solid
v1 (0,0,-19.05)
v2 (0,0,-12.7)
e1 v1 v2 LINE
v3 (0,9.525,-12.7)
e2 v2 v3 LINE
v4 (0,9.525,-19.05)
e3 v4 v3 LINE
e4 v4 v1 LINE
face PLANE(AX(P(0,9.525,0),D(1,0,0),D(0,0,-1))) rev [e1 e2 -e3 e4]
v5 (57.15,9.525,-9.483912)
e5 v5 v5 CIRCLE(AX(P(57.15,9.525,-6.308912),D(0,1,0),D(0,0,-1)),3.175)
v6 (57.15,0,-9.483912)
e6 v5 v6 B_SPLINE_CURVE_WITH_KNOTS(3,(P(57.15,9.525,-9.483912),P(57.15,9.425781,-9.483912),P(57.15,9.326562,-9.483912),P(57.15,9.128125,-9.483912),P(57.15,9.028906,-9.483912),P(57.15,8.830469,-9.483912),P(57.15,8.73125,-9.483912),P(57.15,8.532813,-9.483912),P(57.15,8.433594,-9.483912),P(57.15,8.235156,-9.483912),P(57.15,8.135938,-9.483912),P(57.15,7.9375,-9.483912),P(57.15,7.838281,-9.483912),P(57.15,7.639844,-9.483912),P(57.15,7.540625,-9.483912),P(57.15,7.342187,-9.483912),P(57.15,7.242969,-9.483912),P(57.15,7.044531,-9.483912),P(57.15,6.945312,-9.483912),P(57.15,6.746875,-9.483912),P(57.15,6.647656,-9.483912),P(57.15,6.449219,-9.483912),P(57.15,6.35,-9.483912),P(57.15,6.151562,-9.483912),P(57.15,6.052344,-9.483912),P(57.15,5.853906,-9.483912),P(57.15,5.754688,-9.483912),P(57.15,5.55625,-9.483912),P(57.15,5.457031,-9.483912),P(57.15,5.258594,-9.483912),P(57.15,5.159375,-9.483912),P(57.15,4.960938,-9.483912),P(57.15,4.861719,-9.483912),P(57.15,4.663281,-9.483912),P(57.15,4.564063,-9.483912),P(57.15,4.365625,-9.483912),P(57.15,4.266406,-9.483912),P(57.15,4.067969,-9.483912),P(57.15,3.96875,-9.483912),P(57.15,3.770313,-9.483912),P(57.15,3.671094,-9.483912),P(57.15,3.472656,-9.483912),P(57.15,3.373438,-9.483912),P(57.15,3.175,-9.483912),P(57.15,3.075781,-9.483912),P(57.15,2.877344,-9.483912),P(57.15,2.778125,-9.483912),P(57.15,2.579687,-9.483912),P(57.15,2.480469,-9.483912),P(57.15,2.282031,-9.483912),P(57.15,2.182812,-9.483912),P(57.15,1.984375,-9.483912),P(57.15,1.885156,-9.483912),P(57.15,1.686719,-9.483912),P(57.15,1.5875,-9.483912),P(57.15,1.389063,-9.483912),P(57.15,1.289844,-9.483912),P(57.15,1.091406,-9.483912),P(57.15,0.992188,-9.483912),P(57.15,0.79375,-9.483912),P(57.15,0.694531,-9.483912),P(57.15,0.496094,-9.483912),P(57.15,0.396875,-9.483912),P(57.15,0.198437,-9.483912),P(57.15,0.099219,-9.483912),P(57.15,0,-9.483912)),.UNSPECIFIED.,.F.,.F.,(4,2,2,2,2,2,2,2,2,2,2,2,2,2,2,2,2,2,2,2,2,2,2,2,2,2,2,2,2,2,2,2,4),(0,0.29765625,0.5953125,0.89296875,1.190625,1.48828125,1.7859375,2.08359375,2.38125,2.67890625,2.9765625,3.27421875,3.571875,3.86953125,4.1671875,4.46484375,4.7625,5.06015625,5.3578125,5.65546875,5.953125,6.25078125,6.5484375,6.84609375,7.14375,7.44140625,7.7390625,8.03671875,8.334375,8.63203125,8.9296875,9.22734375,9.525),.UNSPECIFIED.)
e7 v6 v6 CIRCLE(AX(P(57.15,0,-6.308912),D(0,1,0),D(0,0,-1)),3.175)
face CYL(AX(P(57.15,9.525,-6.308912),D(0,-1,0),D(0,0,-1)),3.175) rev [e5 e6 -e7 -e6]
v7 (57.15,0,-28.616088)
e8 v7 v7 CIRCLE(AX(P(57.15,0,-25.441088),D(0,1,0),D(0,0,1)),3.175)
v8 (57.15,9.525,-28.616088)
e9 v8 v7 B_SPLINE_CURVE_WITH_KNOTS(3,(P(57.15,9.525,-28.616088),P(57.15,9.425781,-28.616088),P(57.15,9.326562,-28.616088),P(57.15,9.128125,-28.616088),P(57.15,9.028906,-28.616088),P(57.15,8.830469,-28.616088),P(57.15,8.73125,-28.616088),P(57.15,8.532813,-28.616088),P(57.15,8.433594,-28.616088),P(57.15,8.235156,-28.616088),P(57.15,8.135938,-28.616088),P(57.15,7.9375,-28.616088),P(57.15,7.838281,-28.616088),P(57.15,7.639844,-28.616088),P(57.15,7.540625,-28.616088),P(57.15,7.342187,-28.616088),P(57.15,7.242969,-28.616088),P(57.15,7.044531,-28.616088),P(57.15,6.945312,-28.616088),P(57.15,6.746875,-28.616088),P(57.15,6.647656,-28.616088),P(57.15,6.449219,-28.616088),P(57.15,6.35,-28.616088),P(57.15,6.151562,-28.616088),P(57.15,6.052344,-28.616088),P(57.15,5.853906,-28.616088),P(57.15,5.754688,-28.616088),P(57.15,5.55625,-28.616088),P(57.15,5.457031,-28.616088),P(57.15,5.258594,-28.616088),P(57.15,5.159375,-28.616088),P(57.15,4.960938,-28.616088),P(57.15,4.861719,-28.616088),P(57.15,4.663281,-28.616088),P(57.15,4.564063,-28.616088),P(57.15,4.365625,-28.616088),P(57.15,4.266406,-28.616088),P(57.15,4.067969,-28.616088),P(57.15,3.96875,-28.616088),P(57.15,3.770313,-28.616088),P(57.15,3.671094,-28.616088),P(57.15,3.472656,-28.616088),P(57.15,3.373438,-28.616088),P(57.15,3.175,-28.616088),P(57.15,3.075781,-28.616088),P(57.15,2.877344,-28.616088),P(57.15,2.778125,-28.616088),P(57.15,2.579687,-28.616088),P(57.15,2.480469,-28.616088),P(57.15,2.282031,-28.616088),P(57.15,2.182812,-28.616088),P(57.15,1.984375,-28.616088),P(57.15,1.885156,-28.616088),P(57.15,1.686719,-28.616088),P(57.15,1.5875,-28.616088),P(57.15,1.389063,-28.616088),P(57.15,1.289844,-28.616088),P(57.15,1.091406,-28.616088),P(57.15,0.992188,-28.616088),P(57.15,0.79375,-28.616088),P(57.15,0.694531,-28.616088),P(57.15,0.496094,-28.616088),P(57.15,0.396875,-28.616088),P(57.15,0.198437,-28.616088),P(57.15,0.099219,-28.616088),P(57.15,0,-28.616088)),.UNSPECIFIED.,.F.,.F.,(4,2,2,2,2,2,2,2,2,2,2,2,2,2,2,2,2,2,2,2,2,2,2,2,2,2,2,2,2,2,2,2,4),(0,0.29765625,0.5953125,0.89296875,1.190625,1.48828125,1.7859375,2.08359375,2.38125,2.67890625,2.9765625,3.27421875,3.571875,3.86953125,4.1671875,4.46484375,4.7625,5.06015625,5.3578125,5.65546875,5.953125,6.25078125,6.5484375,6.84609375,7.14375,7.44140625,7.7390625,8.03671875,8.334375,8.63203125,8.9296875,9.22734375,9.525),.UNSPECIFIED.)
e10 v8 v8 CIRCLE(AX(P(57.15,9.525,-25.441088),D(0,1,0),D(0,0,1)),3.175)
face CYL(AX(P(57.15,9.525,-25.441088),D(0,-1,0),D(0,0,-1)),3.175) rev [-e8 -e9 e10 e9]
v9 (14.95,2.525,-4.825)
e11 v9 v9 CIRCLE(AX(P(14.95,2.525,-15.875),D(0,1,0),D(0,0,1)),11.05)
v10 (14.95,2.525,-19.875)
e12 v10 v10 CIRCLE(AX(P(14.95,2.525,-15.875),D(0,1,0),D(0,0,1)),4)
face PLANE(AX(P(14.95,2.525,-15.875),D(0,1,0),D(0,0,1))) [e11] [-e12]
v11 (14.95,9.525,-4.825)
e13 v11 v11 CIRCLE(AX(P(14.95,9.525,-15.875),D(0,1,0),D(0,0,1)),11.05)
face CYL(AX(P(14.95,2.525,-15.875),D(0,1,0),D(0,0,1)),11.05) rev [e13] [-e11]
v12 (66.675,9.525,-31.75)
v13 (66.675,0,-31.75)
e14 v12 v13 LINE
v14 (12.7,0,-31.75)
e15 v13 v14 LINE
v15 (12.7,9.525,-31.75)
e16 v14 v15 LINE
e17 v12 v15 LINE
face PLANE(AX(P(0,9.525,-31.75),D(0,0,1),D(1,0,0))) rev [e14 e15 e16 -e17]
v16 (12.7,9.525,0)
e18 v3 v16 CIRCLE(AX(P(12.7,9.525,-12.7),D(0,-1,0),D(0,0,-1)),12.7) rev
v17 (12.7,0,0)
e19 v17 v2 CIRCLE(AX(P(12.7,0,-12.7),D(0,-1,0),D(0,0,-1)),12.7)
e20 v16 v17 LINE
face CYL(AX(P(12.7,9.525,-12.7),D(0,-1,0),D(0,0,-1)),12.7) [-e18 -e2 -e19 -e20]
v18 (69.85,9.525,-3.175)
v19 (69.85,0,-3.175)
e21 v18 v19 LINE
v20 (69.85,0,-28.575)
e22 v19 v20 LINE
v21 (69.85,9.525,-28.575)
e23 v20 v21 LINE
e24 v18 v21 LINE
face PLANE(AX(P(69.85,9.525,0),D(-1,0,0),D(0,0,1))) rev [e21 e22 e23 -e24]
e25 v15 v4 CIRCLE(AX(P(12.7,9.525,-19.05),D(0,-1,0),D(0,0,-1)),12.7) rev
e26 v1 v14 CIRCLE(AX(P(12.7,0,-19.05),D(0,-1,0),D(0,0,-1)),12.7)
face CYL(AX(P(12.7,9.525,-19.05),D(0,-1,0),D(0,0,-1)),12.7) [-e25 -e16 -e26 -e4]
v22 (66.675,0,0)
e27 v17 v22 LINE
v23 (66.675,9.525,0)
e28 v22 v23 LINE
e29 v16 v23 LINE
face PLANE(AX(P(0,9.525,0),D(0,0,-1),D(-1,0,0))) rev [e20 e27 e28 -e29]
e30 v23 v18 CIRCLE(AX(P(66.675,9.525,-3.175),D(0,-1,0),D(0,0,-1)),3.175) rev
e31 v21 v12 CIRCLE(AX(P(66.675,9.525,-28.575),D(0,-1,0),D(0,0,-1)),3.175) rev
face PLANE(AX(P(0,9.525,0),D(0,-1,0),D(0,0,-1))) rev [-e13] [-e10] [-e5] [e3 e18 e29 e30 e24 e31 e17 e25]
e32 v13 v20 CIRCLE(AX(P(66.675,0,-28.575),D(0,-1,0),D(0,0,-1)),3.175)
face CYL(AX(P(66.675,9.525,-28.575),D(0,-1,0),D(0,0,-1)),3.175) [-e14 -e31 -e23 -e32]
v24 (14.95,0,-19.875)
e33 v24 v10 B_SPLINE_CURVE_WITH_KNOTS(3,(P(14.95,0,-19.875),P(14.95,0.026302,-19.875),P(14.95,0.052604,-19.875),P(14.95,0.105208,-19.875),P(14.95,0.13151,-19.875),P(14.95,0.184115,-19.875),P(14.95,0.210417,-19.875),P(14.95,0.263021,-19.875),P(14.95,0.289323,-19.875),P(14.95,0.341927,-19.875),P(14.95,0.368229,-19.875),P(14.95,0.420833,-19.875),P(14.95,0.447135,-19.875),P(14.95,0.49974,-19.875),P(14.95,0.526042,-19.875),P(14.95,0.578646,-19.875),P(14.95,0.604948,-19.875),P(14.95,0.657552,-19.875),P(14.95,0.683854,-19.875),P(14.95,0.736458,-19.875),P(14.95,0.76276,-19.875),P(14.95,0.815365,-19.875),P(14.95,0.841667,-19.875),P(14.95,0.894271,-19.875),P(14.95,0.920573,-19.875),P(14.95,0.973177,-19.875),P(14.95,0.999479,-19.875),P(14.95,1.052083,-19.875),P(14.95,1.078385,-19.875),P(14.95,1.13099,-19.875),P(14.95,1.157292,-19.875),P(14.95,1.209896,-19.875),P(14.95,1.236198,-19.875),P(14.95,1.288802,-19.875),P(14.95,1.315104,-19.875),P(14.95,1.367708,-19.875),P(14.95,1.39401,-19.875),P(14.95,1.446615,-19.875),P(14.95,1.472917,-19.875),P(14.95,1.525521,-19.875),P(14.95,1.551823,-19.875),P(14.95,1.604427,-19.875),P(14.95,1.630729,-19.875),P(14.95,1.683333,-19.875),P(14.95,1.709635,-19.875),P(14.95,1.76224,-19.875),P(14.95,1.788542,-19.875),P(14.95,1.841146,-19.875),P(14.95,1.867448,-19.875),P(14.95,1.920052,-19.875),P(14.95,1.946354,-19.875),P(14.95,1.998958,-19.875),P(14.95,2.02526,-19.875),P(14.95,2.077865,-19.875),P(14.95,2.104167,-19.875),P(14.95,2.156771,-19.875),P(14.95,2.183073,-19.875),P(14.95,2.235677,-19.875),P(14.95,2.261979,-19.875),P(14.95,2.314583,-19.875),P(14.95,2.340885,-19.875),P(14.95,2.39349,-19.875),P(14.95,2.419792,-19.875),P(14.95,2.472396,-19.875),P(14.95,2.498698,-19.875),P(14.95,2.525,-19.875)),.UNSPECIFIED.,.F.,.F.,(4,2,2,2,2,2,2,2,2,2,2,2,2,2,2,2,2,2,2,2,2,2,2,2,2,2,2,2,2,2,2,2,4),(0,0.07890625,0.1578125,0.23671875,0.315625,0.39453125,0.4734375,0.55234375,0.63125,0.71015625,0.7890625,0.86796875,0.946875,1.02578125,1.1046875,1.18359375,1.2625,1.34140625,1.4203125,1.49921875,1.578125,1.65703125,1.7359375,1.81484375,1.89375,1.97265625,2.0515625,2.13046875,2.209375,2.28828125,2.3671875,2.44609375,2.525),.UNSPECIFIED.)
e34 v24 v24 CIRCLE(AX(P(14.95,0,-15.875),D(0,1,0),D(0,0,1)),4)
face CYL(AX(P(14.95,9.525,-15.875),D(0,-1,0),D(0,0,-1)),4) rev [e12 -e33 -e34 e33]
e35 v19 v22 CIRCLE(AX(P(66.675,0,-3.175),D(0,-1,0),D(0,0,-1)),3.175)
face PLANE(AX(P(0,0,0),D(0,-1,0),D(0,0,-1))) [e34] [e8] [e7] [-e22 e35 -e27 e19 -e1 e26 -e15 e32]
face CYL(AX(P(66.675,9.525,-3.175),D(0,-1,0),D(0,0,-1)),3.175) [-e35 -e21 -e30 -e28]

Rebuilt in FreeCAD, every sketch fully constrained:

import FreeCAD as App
import Part
import Sketcher
Q = App.Units.Quantity


def edges_at(feature, points):
    """Names of the edges that pass closest to the given points."""
    edges = feature.Shape.Edges
    near = lambda p: min(range(len(edges)), key=lambda i: edges[i].distToShape(Part.Vertex(*p))[0])
    return sorted({f"Edge{near(p) + 1}" for p in points})


def add_polygon(sketch, points):
    """Adds a closed chain of lines whose ends are joined by coincident constraints."""
    first, n = sketch.GeometryCount, len(points)
    for a, b in zip(points, points[1:] + points[:1]):
        sketch.addGeometry(Part.LineSegment(App.Vector(*a, 0), App.Vector(*b, 0)), False)
    for i in range(n):
        sketch.addConstraint(Sketcher.Constraint("Coincident", first + i, 2, first + (i + 1) % n, 1))

doc = App.newDocument("Part")
body = doc.addObject("PartDesign::Body", "Body")

# Sketch on XZ plane
sketch1 = body.newObject("Sketcher::SketchObject", "Sketch")
sketch1.AttachmentSupport = (doc.getObject("XZ_Plane"), [""])
sketch1.MapMode = "FlatFace"
add_polygon(sketch1, [(0, -31.8), (0, 0), (69.8, 0), (69.8, -31.8)])  # lines 0-3
sketch1.addGeometry(Part.Circle(App.Vector(57.1, -6.3, 0), App.Vector(0, 0, 1), 3.2), False)  # 4
sketch1.addGeometry(Part.Circle(App.Vector(15, -15.9, 0), App.Vector(0, 0, 1), 4), False)  # 5
sketch1.addGeometry(Part.Circle(App.Vector(57.1, -25.4, 0), App.Vector(0, 0, 1), 3.2), False)  # 6
sketch1.addConstraint(Sketcher.Constraint("Vertical", 0))
sketch1.addConstraint(Sketcher.Constraint("Horizontal", 1))
sketch1.addConstraint(Sketcher.Constraint("Vertical", 2))
sketch1.addConstraint(Sketcher.Constraint("Horizontal", 3))
sketch1.addConstraint(Sketcher.Constraint("Coincident", 0, 2, -1, 1))
sketch1.addConstraint(Sketcher.Constraint("Equal", 4, 6))
sketch1.addConstraint(Sketcher.Constraint("Vertical", 4, 3, 6, 3))
sketch1.addConstraint(Sketcher.Constraint("Diameter", 4, Q("0.25 in")))
sketch1.addConstraint(Sketcher.Constraint("DistanceX", 1, 1, 1, 2, Q("2.75 in")))
sketch1.addConstraint(Sketcher.Constraint("DistanceY", 0, 1, 0, 2, Q("1.25 in")))
sketch1.addConstraint(Sketcher.Constraint("DistanceX", 4, 3, 1, 2, Q("0.5 in")))
sketch1.addConstraint(Sketcher.Constraint("Diameter", 5, 8.0))
sketch1.addConstraint(Sketcher.Constraint("DistanceY", 5, 3, -1, 1, Q("0.625 in")))
sketch1.addConstraint(Sketcher.Constraint("DistanceX", -1, 1, 5, 3, 14.95))
sketch1.addConstraint(Sketcher.Constraint("DistanceY", 4, 3, -1, 1, 6.308912))
sketch1.addConstraint(Sketcher.Constraint("DistanceY", 6, 3, -1, 1, 25.441088))
pad1 = body.newObject("PartDesign::Pad", "Pad")
pad1.Profile = sketch1
pad1.Length = Q("0.375 in")
pad1.Reversed = True

# Sketch on XZ plane
sketch2 = body.newObject("Sketcher::SketchObject", "Sketch001")
sketch2.AttachmentSupport = (doc.getObject("XZ_Plane"), [""])
sketch2.MapMode = "FlatFace"
sketch2.AttachmentOffset = App.Placement(App.Vector(0, 0, -0.375 * 25.4), App.Rotation())
sketch2.addGeometry(Part.Circle(App.Vector(15, -16, 0), App.Vector(0, 0, 1), 11), False)
sketch2.addConstraint(Sketcher.Constraint("Diameter", 0, 22.1))
sketch2.addConstraint(Sketcher.Constraint("DistanceY", 0, 3, -1, 1, Q("0.625 in")))
sketch2.addConstraint(Sketcher.Constraint("DistanceX", -1, 1, 0, 3, 14.95))
pocket1 = body.newObject("PartDesign::Pocket", "Pocket")
pocket1.Profile = sketch2
pocket1.Length = 7
pocket1.Reversed = True
doc.recompute()

fillet = body.newObject("PartDesign::Fillet", "Fillet")
fillet.Base = (pocket1, edges_at(pocket1, [(0, 4.763, -31.75), (0, 4.763, 0)]))
fillet.Radius = Q("0.5 in")
doc.recompute()

fillet2 = body.newObject("PartDesign::Fillet", "Fillet001")
fillet2.Base = (fillet, edges_at(fillet, [(69.85, 4.763, -31.75), (69.85, 4.763, 0)]))
fillet2.Radius = Q("0.125 in")

doc.recompute()
